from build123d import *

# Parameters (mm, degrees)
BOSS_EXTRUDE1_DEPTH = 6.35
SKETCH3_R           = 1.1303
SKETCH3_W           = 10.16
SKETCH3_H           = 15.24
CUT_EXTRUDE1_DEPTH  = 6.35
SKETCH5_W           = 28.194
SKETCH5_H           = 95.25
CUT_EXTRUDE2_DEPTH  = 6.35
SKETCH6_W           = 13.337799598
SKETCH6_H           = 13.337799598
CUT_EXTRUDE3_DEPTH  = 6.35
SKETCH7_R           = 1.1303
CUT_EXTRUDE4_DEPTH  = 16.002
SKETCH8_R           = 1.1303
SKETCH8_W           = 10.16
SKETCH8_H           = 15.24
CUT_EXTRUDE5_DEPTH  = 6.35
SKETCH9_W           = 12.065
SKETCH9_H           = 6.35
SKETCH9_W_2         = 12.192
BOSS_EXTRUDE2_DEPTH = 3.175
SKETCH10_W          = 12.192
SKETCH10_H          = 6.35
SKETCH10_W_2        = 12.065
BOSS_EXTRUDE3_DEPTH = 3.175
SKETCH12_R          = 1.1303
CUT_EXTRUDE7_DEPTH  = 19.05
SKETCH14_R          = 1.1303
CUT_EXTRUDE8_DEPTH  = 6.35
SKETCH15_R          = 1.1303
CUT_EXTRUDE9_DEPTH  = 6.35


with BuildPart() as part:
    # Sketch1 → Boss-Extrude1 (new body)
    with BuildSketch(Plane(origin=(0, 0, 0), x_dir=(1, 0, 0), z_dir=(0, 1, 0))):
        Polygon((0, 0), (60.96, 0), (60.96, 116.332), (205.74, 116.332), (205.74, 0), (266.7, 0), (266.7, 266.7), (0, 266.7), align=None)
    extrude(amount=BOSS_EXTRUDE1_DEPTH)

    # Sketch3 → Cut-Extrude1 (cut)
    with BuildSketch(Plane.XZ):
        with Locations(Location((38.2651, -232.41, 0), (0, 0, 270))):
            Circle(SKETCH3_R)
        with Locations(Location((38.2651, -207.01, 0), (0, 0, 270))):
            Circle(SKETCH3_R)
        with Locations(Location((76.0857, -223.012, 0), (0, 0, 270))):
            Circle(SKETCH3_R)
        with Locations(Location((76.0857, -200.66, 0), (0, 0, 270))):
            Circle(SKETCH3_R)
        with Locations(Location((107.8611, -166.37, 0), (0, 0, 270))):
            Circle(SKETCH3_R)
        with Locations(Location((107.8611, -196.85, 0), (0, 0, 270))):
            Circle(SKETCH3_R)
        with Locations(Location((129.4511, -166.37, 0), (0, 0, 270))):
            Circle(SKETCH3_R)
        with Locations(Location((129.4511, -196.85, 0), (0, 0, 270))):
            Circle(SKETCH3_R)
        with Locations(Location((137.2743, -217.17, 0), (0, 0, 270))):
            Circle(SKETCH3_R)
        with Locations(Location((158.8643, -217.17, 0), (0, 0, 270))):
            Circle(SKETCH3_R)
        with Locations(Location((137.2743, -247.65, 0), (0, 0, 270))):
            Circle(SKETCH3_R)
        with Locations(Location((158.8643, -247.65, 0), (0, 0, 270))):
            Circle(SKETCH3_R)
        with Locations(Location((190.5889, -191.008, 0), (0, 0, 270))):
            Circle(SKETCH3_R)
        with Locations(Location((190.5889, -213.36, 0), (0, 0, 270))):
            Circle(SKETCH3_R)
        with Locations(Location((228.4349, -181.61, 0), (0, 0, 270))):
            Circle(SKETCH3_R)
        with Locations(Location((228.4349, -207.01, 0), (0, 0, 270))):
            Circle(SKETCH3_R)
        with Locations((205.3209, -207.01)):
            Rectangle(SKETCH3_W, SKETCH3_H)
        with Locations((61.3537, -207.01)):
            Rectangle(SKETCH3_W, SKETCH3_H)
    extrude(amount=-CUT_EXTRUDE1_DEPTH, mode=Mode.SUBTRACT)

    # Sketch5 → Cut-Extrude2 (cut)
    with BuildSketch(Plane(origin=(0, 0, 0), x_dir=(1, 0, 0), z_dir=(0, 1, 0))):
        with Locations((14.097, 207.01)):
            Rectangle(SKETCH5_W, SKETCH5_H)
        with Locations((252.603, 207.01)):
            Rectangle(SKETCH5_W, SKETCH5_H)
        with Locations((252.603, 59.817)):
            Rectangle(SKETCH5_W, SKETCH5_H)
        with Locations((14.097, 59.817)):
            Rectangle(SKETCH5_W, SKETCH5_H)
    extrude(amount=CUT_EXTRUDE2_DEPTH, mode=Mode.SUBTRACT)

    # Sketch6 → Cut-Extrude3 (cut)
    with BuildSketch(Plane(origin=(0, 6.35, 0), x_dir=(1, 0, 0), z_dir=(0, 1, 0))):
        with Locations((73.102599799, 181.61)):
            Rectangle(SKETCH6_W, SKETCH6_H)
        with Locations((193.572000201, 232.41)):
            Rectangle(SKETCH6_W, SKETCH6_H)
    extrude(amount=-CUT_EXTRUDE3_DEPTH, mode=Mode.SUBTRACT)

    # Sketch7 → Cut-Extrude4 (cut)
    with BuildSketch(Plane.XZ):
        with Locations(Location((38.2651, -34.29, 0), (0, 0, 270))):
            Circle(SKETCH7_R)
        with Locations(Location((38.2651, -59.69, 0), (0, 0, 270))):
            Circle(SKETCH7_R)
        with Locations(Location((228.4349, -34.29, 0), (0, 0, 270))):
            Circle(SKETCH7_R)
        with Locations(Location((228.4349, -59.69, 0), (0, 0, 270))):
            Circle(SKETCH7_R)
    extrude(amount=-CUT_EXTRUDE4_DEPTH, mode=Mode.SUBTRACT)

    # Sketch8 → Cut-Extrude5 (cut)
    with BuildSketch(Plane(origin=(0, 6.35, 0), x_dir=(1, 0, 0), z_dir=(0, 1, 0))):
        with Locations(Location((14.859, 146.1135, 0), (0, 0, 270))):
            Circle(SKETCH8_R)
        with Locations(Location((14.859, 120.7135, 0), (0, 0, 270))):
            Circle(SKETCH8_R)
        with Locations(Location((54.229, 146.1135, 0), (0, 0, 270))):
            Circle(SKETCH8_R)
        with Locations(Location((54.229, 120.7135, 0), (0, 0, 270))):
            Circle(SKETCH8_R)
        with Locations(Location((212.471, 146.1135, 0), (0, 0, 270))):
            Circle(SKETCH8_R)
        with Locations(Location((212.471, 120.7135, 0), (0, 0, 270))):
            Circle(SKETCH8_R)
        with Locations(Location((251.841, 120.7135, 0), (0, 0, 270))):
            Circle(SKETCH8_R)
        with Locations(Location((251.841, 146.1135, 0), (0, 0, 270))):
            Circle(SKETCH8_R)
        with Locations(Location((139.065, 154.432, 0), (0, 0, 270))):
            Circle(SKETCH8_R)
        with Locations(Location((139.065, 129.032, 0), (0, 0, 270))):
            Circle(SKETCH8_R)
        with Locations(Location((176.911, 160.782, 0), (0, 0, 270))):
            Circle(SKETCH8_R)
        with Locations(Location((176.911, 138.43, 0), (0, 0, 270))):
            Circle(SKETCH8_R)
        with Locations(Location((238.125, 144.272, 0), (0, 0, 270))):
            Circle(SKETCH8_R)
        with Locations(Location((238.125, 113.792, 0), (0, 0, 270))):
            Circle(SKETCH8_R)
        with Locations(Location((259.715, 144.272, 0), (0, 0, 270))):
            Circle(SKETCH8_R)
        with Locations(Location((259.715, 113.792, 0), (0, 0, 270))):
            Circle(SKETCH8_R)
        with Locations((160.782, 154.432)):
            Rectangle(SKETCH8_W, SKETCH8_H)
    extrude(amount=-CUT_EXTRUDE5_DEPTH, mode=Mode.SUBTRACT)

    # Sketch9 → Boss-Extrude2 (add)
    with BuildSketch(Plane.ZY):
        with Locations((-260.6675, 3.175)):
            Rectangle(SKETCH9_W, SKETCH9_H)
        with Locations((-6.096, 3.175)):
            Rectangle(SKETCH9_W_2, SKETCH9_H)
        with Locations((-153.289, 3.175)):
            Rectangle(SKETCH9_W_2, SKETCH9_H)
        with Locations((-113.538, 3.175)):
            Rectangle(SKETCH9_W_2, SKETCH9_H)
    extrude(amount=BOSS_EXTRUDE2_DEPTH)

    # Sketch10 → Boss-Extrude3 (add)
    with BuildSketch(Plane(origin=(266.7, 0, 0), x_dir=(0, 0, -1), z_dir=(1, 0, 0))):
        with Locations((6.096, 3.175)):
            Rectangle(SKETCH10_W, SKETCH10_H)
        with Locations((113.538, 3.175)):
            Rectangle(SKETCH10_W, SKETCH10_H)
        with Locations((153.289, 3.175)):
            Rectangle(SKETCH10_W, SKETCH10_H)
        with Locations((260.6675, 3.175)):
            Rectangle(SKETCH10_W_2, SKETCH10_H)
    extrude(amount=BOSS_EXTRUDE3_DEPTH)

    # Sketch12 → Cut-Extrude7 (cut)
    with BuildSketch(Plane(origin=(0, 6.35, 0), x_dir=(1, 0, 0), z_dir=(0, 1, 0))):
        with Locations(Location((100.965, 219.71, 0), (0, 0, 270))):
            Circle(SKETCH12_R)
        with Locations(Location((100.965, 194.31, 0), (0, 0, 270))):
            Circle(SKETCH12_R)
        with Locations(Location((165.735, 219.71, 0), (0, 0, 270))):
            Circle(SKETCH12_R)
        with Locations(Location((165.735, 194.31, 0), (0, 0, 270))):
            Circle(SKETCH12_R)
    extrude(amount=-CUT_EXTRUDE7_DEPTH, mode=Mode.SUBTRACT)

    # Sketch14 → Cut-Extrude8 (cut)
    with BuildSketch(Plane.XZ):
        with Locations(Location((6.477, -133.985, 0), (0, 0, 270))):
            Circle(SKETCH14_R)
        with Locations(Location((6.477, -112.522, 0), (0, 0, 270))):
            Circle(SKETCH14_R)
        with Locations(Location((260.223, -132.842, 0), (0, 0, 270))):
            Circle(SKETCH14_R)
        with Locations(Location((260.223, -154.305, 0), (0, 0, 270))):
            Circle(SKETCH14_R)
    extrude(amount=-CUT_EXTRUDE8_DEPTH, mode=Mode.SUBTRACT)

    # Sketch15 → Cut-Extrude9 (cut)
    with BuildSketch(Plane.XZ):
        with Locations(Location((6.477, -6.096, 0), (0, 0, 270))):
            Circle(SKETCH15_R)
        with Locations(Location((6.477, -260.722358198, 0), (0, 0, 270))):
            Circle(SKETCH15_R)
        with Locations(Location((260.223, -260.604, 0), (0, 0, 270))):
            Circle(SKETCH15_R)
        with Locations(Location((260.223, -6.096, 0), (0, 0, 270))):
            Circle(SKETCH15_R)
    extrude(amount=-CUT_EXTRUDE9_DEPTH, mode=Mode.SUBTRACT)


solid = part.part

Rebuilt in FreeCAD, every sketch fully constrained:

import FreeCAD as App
import Part
import Sketcher
from FreeCAD import Vector
Q = App.Units.Quantity


def add_polygon(sketch, points):
    """Adds a closed chain of lines whose ends are joined by coincident constraints."""
    first, n = sketch.GeometryCount, len(points)
    for a, b in zip(points, points[1:] + points[:1]):
        sketch.addGeometry(Part.LineSegment(App.Vector(*a, 0), App.Vector(*b, 0)), False)
    for i in range(n):
        sketch.addConstraint(Sketcher.Constraint("Coincident", first + i, 2, first + (i + 1) % n, 1))

doc = App.newDocument("Part")
body = doc.addObject("PartDesign::Body", "Body")

sketch1 = doc.addObject("Sketcher::SketchObject", "Sketch")
body.addObject(sketch1)
sketch1.AttachmentSupport = (doc.XZ_Plane, [""])
sketch1.MapMode = "FlatFace"
add_polygon(sketch1, [(0, 0), (60.96, 0), (60.96, -116.332), (205.74, -116.332), (205.74, 0), (266.7, 0), (266.7, -266.7), (0, -266.7)])
sketch1.addConstraint([
    Sketcher.Constraint("Horizontal", 0),
    Sketcher.Constraint("Vertical", 1),
    Sketcher.Constraint("Horizontal", 2),
    Sketcher.Constraint("Vertical", 3),
    Sketcher.Constraint("Horizontal", 4),
    Sketcher.Constraint("Vertical", 5),
    Sketcher.Constraint("Horizontal", 6),
    Sketcher.Constraint("Vertical", 7),
    Sketcher.Constraint("Coincident", 7, 2, -1, 1),
    Sketcher.Constraint("PointOnObject", 3, 2, -1),
    Sketcher.Constraint("Equal", 0, 4),
    Sketcher.Constraint("Equal", 6, 5),
    Sketcher.Constraint("DistanceX", 0, 1, 0, 2, Q("2.4 in")),
    Sketcher.Constraint("DistanceX", 2, 1, 2, 2, Q("5.7 in")),
    Sketcher.Constraint("DistanceY", 1, 2, 1, 1, Q("4.58 in")),
])
pad1 = doc.addObject("PartDesign::Pad", "Pad")
body.addObject(pad1)
pad1.Profile = sketch1
pad1.Length = Q("0.25 in")
pad1.Reversed = True

sketch2 = doc.addObject("Sketcher::SketchObject", "Sketch001")
body.addObject(sketch2)
sketch2.AttachmentSupport = (doc.XZ_Plane, [""])
sketch2.MapMode = "FlatFace"
sketch2.addGeometry(Part.Circle(Vector(38.2651, -232.41, 0), Vector(0, 0, 1), 1.1303), False)
sketch2.addGeometry(Part.Circle(Vector(38.2651, -207.01, 0), Vector(0, 0, 1), 1.1303), False)
sketch2.addGeometry(Part.Circle(Vector(76.0857, -223.012, 0), Vector(0, 0, 1), 1.1303), False)
sketch2.addGeometry(Part.Circle(Vector(76.0857, -200.66, 0), Vector(0, 0, 1), 1.1303), False)
sketch2.addGeometry(Part.Circle(Vector(107.8611, -166.37, 0), Vector(0, 0, 1), 1.1303), False)
sketch2.addGeometry(Part.Circle(Vector(107.8611, -196.85, 0), Vector(0, 0, 1), 1.1303), False)
sketch2.addGeometry(Part.Circle(Vector(129.4511, -166.37, 0), Vector(0, 0, 1), 1.1303), False)
sketch2.addGeometry(Part.Circle(Vector(129.4511, -196.85, 0), Vector(0, 0, 1), 1.1303), False)
sketch2.addGeometry(Part.Circle(Vector(137.2743, -217.17, 0), Vector(0, 0, 1), 1.1303), False)
sketch2.addGeometry(Part.Circle(Vector(158.8643, -217.17, 0), Vector(0, 0, 1), 1.1303), False)
sketch2.addGeometry(Part.Circle(Vector(137.2743, -247.65, 0), Vector(0, 0, 1), 1.1303), False)
sketch2.addGeometry(Part.Circle(Vector(158.8643, -247.65, 0), Vector(0, 0, 1), 1.1303), False)
sketch2.addGeometry(Part.Circle(Vector(190.5889, -191.008, 0), Vector(0, 0, 1), 1.1303), False)
sketch2.addGeometry(Part.Circle(Vector(190.5889, -213.36, 0), Vector(0, 0, 1), 1.1303), False)
sketch2.addGeometry(Part.Circle(Vector(228.4349, -181.61, 0), Vector(0, 0, 1), 1.1303), False)
sketch2.addGeometry(Part.Circle(Vector(228.4349, -207.01, 0), Vector(0, 0, 1), 1.1303), False)
add_polygon(sketch2, [(200.2409, -199.39), (200.2409, -214.63), (210.4009, -214.63), (210.4009, -199.39)])
add_polygon(sketch2, [(56.2737, -199.39), (56.2737, -214.63), (66.4337, -214.63), (66.4337, -199.39)])
sketch2.addConstraint([
    Sketcher.Constraint("Vertical", 16),
    Sketcher.Constraint("Horizontal", 17),
    Sketcher.Constraint("Vertical", 18),
    Sketcher.Constraint("Horizontal", 19),
    Sketcher.Constraint("Vertical", 20),
    Sketcher.Constraint("Horizontal", 21),
    Sketcher.Constraint("Vertical", 22),
    Sketcher.Constraint("Horizontal", 23),
    Sketcher.Constraint("Equal", 0, 1),
    Sketcher.Constraint("Equal", 1, 2),
    Sketcher.Constraint("Equal", 2, 3),
    Sketcher.Constraint("Equal", 3, 4),
    Sketcher.Constraint("Equal", 4, 5),
    Sketcher.Constraint("Equal", 5, 6),
    Sketcher.Constraint("Equal", 6, 7),
    Sketcher.Constraint("Equal", 7, 8),
    Sketcher.Constraint("Equal", 8, 9),
    Sketcher.Constraint("Equal", 9, 10),
    Sketcher.Constraint("Equal", 10, 11),
    Sketcher.Constraint("Equal", 11, 12),
    Sketcher.Constraint("Equal", 12, 13),
    Sketcher.Constraint("Equal", 13, 14),
    Sketcher.Constraint("Equal", 14, 15),
    Sketcher.Constraint("Horizontal", 4, 3, 6, 3),
    Sketcher.Constraint("Horizontal", 5, 3, 7, 3),
    Sketcher.Constraint("Horizontal", 8, 3, 9, 3),
    Sketcher.Constraint("Horizontal", 10, 3, 11, 3),
    Sketcher.Constraint("Horizontal", 1, 3, 15, 3),
    Sketcher.Constraint("Horizontal", 17, 2, 20, 2),
    Sketcher.Constraint("Horizontal", 19, 2, 22, 2),
    Sketcher.Constraint("Vertical", 0, 3, 1, 3),
    Sketcher.Constraint("Vertical", 2, 3, 3, 3),
    Sketcher.Constraint("Vertical", 4, 3, 5, 3),
    Sketcher.Constraint("Vertical", 6, 3, 7, 3),
    Sketcher.Constraint("Vertical", 8, 3, 10, 3),
    Sketcher.Constraint("Vertical", 9, 3, 11, 3),
    Sketcher.Constraint("Vertical", 12, 3, 13, 3),
    Sketcher.Constraint("Vertical", 14, 3, 15, 3),
    Sketcher.Constraint("Equal", 19, 21),
    Sketcher.Constraint("Diameter", 0, Q("0.089 in")),
    Sketcher.Constraint("DistanceX", 17, 1, 17, 2, Q("0.4 in")),
    Sketcher.Constraint("DistanceY", 16, 2, 16, 1, Q("0.6 in")),
    Sketcher.Constraint("DistanceY", 0, 3, 1, 3, Q("1 in")),
    Sketcher.Constraint("DistanceY", 8, 3, 6, 3, Q("2 in")),
    Sketcher.Constraint("DistanceY", 10, 3, 7, 3, Q("2 in")),
    Sketcher.Constraint("DistanceY", 15, 3, 14, 3, Q("1 in")),
    Sketcher.Constraint("DistanceY", 3, 3, -1, 1, Q("7.9 in")),
    Sketcher.Constraint("DistanceY", 13, 3, -1, 1, Q("8.4 in")),
    Sketcher.Constraint("DistanceY", 1, 3, 4, 3, Q("1.6 in")),
    Sketcher.Constraint("DistanceY", 5, 3, 4, 3, Q("1.2 in")),
    Sketcher.Constraint("DistanceY", 16, 2, 15, 3, Q("0.3 in")),
    Sketcher.Constraint("DistanceY", 0, 3, -1, 1, Q("9.15 in")),
    Sketcher.Constraint("DistanceY", 2, 3, -1, 1, Q("8.78 in")),
    Sketcher.Constraint("DistanceY", 12, 3, -1, 1, Q("7.52 in")),
    Sketcher.Constraint("DistanceX", 1, 3, 4, 3, Q("2.74 in")),
    Sketcher.Constraint("DistanceX", 4, 3, 6, 3, Q("0.85 in")),
    Sketcher.Constraint("DistanceX", 8, 3, 9, 3, Q("0.85 in")),
    Sketcher.Constraint("DistanceX", 12, 3, 14, 3, Q("1.49 in")),
    Sketcher.Constraint("DistanceX", 13, 3, 16, 2, Q("0.38 in")),
    Sketcher.Constraint("DistanceX", 20, 2, 2, 3, Q("0.78 in")),
    Sketcher.Constraint("DistanceX", 0, 3, 2, 3, Q("1.489 in")),
    Sketcher.Constraint("DistanceX", 7, 3, 8, 3, Q("0.308 in")),
    Sketcher.Constraint("DistanceX", 9, 3, 12, 3, Q("1.249 in")),
    Sketcher.Constraint("DistanceX", -1, 1, 0, 3, Q("1.5065 in")),
])
pocket1 = doc.addObject("PartDesign::Pocket", "Pocket")
body.addObject(pocket1)
pocket1.Profile = sketch2
pocket1.Length = Q("0.25 in")

sketch3 = doc.addObject("Sketcher::SketchObject", "Sketch002")
body.addObject(sketch3)
sketch3.AttachmentSupport = (doc.XZ_Plane, [""])
sketch3.MapMode = "FlatFace"
add_polygon(sketch3, [(0, -254.635), (0, -159.385), (28.194, -159.385), (28.194, -254.635)])
add_polygon(sketch3, [(238.506, -254.635), (238.506, -159.385), (266.7, -159.385), (266.7, -254.635)])
add_polygon(sketch3, [(238.506, -107.442), (238.506, -12.192), (266.7, -12.192), (266.7, -107.442)])
add_polygon(sketch3, [(0, -107.442), (0, -12.192), (28.194, -12.192), (28.194, -107.442)])
sketch3.addConstraint([
    Sketcher.Constraint("Vertical", 0),
    Sketcher.Constraint("Horizontal", 1),
    Sketcher.Constraint("Vertical", 2),
    Sketcher.Constraint("Horizontal", 3),
    Sketcher.Constraint("Vertical", 4),
    Sketcher.Constraint("Horizontal", 5),
    Sketcher.Constraint("Vertical", 6),
    Sketcher.Constraint("Horizontal", 7),
    Sketcher.Constraint("Vertical", 8),
    Sketcher.Constraint("Horizontal", 9),
    Sketcher.Constraint("Vertical", 10),
    Sketcher.Constraint("Horizontal", 11),
    Sketcher.Constraint("Vertical", 12),
    Sketcher.Constraint("Horizontal", 13),
    Sketcher.Constraint("Vertical", 14),
    Sketcher.Constraint("Horizontal", 15),
    Sketcher.Constraint("PointOnObject", 0, 2, -2),
    Sketcher.Constraint("PointOnObject", 12, 2, -2),
    Sketcher.Constraint("Horizontal", 1, 2, 4, 2),
    Sketcher.Constraint("Horizontal", 3, 2, 6, 2),
    Sketcher.Constraint("Horizontal", 9, 2, 12, 2),
    Sketcher.Constraint("Horizontal", 11, 2, 14, 2),
    Sketcher.Constraint("Vertical", 7, 2, 8, 2),
    Sketcher.Constraint("Vertical", 6, 2, 9, 2),
    Sketcher.Constraint("Vertical", 2, 2, 13, 2),
    Sketcher.Constraint("Equal", 3, 5),
    Sketcher.Constraint("Equal", 6, 8),
    Sketcher.Constraint("DistanceX", 1, 1, 1, 2, Q("1.11 in")),
    Sketcher.Constraint("DistanceY", 0, 1, 0, 2, Q("3.75 in")),
    Sketcher.Constraint("DistanceX", -1, 1, 5, 2, Q("10.5 in")),
    Sketcher.Constraint("DistanceY", 8, 2, -1, 1, Q("0.48 in")),
    Sketcher.Constraint("DistanceY", 0, 2, -1, 1, Q("6.275 in")),
])
pocket2 = doc.addObject("PartDesign::Pocket", "Pocket001")
body.addObject(pocket2)
pocket2.Profile = sketch3
pocket2.Length = Q("0.25 in")

sketch4 = doc.addObject("Sketcher::SketchObject", "Sketch003")
body.addObject(sketch4)
sketch4.AttachmentSupport = (doc.XZ_Plane, [""])
sketch4.MapMode = "FlatFace"
sketch4.AttachmentOffset = App.Placement(Vector(0, 0, -0.25 * 25.4), App.Rotation())
add_polygon(sketch4, [(66.4337, -188.2789), (66.4337, -174.9411), (79.7715, -174.9411), (79.7715, -188.2789)])
add_polygon(sketch4, [(186.9031, -239.0789), (186.9031, -225.7411), (200.2409, -225.7411), (200.2409, -239.0789)])
sketch4.addConstraint([
    Sketcher.Constraint("Vertical", 0),
    Sketcher.Constraint("Horizontal", 1),
    Sketcher.Constraint("Vertical", 2),
    Sketcher.Constraint("Horizontal", 3),
    Sketcher.Constraint("Vertical", 4),
    Sketcher.Constraint("Horizontal", 5),
    Sketcher.Constraint("Vertical", 6),
    Sketcher.Constraint("Horizontal", 7),
    Sketcher.Constraint("Equal", 3, 5),
    Sketcher.Constraint("Equal", 7, 0),
    Sketcher.Constraint("Equal", 2, 4),
    Sketcher.Constraint("DistanceY", 4, 2, 1, 2, Q("2 in")),
    Sketcher.Constraint("DistanceX", 3, 2, 5, 2, Q("5.268 in")),
    Sketcher.Constraint("DistanceX", 1, 1, 1, 2, Q("13.3378 mm")),
    Sketcher.Constraint("DistanceX", -1, 1, 0, 2, Q("2.6155 in")),
    Sketcher.Constraint("DistanceY", 0, 2, -1, 1, Q("174.9411 mm")),
])
pocket3 = doc.addObject("PartDesign::Pocket", "Pocket002")
body.addObject(pocket3)
pocket3.Profile = sketch4
pocket3.Length = Q("0.25 in")
pocket3.Reversed = True

sketch5 = doc.addObject("Sketcher::SketchObject", "Sketch004")
body.addObject(sketch5)
sketch5.AttachmentSupport = (doc.XZ_Plane, [""])
sketch5.MapMode = "FlatFace"
sketch5.addGeometry([
    Part.Circle(Vector(38.2651, -34.29, 0), Vector(0, 0, 1), 1.1303),
    Part.Circle(Vector(38.2651, -59.69, 0), Vector(0, 0, 1), 1.1303),
    Part.Circle(Vector(228.4349, -34.29, 0), Vector(0, 0, 1), 1.1303),
    Part.Circle(Vector(228.4349, -59.69, 0), Vector(0, 0, 1), 1.1303),
], False)
sketch5.addConstraint([
    Sketcher.Constraint("Equal", 0, 1),
    Sketcher.Constraint("Equal", 1, 2),
    Sketcher.Constraint("Equal", 2, 3),
    Sketcher.Constraint("Horizontal", 0, 3, 2, 3),
    Sketcher.Constraint("Horizontal", 1, 3, 3, 3),
    Sketcher.Constraint("Vertical", 0, 3, 1, 3),
    Sketcher.Constraint("Vertical", 2, 3, 3, 3),
    Sketcher.Constraint("Diameter", 0, Q("0.089 in")),
    Sketcher.Constraint("DistanceY", 1, 3, 0, 3, Q("1 in")),
    Sketcher.Constraint("DistanceY", 0, 3, -1, 1, Q("1.35 in")),
    Sketcher.Constraint("DistanceX", 0, 3, 2, 3, Q("7.487 in")),
    Sketcher.Constraint("DistanceX", -1, 1, 0, 3, Q("1.5065 in")),
])
pocket4 = doc.addObject("PartDesign::Pocket", "Pocket003")
body.addObject(pocket4)
pocket4.Profile = sketch5
pocket4.Length = Q("0.63 in")

sketch6 = doc.addObject("Sketcher::SketchObject", "Sketch005")
body.addObject(sketch6)
sketch6.AttachmentSupport = (doc.XZ_Plane, [""])
sketch6.MapMode = "FlatFace"
sketch6.AttachmentOffset = App.Placement(Vector(0, 0, -0.25 * 25.4), App.Rotation())
sketch6.addGeometry(Part.Circle(Vector(14.859, -146.1135, 0), Vector(0, 0, 1), 1.1303), False)
sketch6.addGeometry(Part.Circle(Vector(14.859, -120.7135, 0), Vector(0, 0, 1), 1.1303), False)
sketch6.addGeometry(Part.Circle(Vector(54.229, -146.1135, 0), Vector(0, 0, 1), 1.1303), False)
sketch6.addGeometry(Part.Circle(Vector(54.229, -120.7135, 0), Vector(0, 0, 1), 1.1303), False)
sketch6.addGeometry(Part.Circle(Vector(212.471, -146.1135, 0), Vector(0, 0, 1), 1.1303), False)
sketch6.addGeometry(Part.Circle(Vector(212.471, -120.7135, 0), Vector(0, 0, 1), 1.1303), False)
sketch6.addGeometry(Part.Circle(Vector(251.841, -120.7135, 0), Vector(0, 0, 1), 1.1303), False)
sketch6.addGeometry(Part.Circle(Vector(251.841, -146.1135, 0), Vector(0, 0, 1), 1.1303), False)
sketch6.addGeometry(Part.Circle(Vector(139.065, -154.432, 0), Vector(0, 0, 1), 1.1303), False)
sketch6.addGeometry(Part.Circle(Vector(139.065, -129.032, 0), Vector(0, 0, 1), 1.1303), False)
sketch6.addGeometry(Part.Circle(Vector(176.911, -160.782, 0), Vector(0, 0, 1), 1.1303), False)
sketch6.addGeometry(Part.Circle(Vector(176.911, -138.43, 0), Vector(0, 0, 1), 1.1303), False)
sketch6.addGeometry(Part.Circle(Vector(238.125, -144.272, 0), Vector(0, 0, 1), 1.1303), False)
sketch6.addGeometry(Part.Circle(Vector(238.125, -113.792, 0), Vector(0, 0, 1), 1.1303), False)
sketch6.addGeometry(Part.Circle(Vector(259.715, -144.272, 0), Vector(0, 0, 1), 1.1303), False)
sketch6.addGeometry(Part.Circle(Vector(259.715, -113.792, 0), Vector(0, 0, 1), 1.1303), False)
add_polygon(sketch6, [(155.702, -162.052), (155.702, -146.812), (165.862, -146.812), (165.862, -162.052)])
sketch6.addConstraint([
    Sketcher.Constraint("Vertical", 16),
    Sketcher.Constraint("Horizontal", 17),
    Sketcher.Constraint("Vertical", 18),
    Sketcher.Constraint("Horizontal", 19),
    Sketcher.Constraint("Equal", 0, 1),
    Sketcher.Constraint("Equal", 1, 2),
    Sketcher.Constraint("Equal", 2, 3),
    Sketcher.Constraint("Equal", 3, 4),
    Sketcher.Constraint("Equal", 4, 5),
    Sketcher.Constraint("Equal", 5, 6),
    Sketcher.Constraint("Equal", 6, 7),
    Sketcher.Constraint("Equal", 7, 8),
    Sketcher.Constraint("Equal", 8, 9),
    Sketcher.Constraint("Equal", 9, 10),
    Sketcher.Constraint("Equal", 10, 11),
    Sketcher.Constraint("Equal", 11, 12),
    Sketcher.Constraint("Equal", 12, 13),
    Sketcher.Constraint("Equal", 13, 14),
    Sketcher.Constraint("Equal", 14, 15),
    Sketcher.Constraint("Horizontal", 0, 3, 2, 3),
    Sketcher.Constraint("Horizontal", 1, 3, 3, 3),
    Sketcher.Constraint("Horizontal", 2, 3, 4, 3),
    Sketcher.Constraint("Horizontal", 3, 3, 5, 3),
    Sketcher.Constraint("Horizontal", 5, 3, 6, 3),
    Sketcher.Constraint("Horizontal", 4, 3, 7, 3),
    Sketcher.Constraint("Horizontal", 12, 3, 14, 3),
    Sketcher.Constraint("Horizontal", 13, 3, 15, 3),
    Sketcher.Constraint("Vertical", 0, 3, 1, 3),
    Sketcher.Constraint("Vertical", 2, 3, 3, 3),
    Sketcher.Constraint("Vertical", 4, 3, 5, 3),
    Sketcher.Constraint("Vertical", 6, 3, 7, 3),
    Sketcher.Constraint("Vertical", 8, 3, 9, 3),
    Sketcher.Constraint("Vertical", 10, 3, 11, 3),
    Sketcher.Constraint("Vertical", 12, 3, 13, 3),
    Sketcher.Constraint("Vertical", 14, 3, 15, 3),
    Sketcher.Constraint("Diameter", 0, Q("0.089 in")),
    Sketcher.Constraint("DistanceX", 17, 1, 17, 2, Q("0.4 in")),
    Sketcher.Constraint("DistanceY", 16, 1, 16, 2, Q("0.6 in")),
    Sketcher.Constraint("DistanceY", 0, 3, 1, 3, Q("1 in")),
    Sketcher.Constraint("DistanceY", 8, 3, 9, 3, Q("1 in")),
    Sketcher.Constraint("DistanceX", 10, 3, 4, 3, Q("1.4 in")),
    Sketcher.Constraint("DistanceY", 12, 3, 13, 3, Q("1.2 in")),
    Sketcher.Constraint("DistanceY", 8, 3, 16, 2, Q("0.3 in")),
    Sketcher.Constraint("DistanceY", 8, 3, -1, 1, Q("6.08 in")),
    Sketcher.Constraint("DistanceY", 10, 3, -1, 1, Q("6.33 in")),
    Sketcher.Constraint("DistanceY", 11, 3, -1, 1, Q("5.45 in")),
    Sketcher.Constraint("DistanceY", 12, 3, -1, 1, Q("5.68 in")),
    Sketcher.Constraint("DistanceX", -1, 1, 16, 2, Q("6.13 in")),
    Sketcher.Constraint("DistanceX", 0, 3, 2, 3, Q("1.55 in")),
    Sketcher.Constraint("DistanceX", 2, 3, 4, 3, Q("6.23 in")),
    Sketcher.Constraint("DistanceX", 5, 3, 6, 3, Q("1.55 in")),
    Sketcher.Constraint("DistanceX", 8, 3, 4, 3, Q("2.89 in")),
    Sketcher.Constraint("DistanceX", 12, 3, 7, 3, Q("0.54 in")),
    Sketcher.Constraint("DistanceX", 7, 3, 14, 3, Q("0.31 in")),
    Sketcher.Constraint("DistanceX", -1, 1, 0, 3, Q("0.585 in")),
    Sketcher.Constraint("DistanceY", 0, 3, -1, 1, Q("5.7525 in")),
])
pocket5 = doc.addObject("PartDesign::Pocket", "Pocket004")
body.addObject(pocket5)
pocket5.Profile = sketch6
pocket5.Length = Q("0.25 in")
pocket5.Reversed = True

sketch7 = doc.addObject("Sketcher::SketchObject", "Sketch006")
body.addObject(sketch7)
sketch7.AttachmentSupport = (doc.YZ_Plane, [""])
sketch7.MapMode = "FlatFace"
add_polygon(sketch7, [(6.35, -266.7), (0, -266.7), (0, -254.635), (6.35, -254.635)])
add_polygon(sketch7, [(6.35, -12.192), (0, -12.192), (0, 0), (6.35, 0)])
add_polygon(sketch7, [(6.35, -159.385), (0, -159.385), (0, -147.193), (6.35, -147.193)])
add_polygon(sketch7, [(6.35, -119.634), (0, -119.634), (0, -107.442), (6.35, -107.442)])
sketch7.addConstraint([
    Sketcher.Constraint("Horizontal", 0),
    Sketcher.Constraint("Vertical", 1),
    Sketcher.Constraint("Horizontal", 2),
    Sketcher.Constraint("Vertical", 3),
    Sketcher.Constraint("Horizontal", 4),
    Sketcher.Constraint("Vertical", 5),
    Sketcher.Constraint("Horizontal", 6),
    Sketcher.Constraint("Vertical", 7),
    Sketcher.Constraint("Horizontal", 8),
    Sketcher.Constraint("Vertical", 9),
    Sketcher.Constraint("Horizontal", 10),
    Sketcher.Constraint("Vertical", 11),
    Sketcher.Constraint("Horizontal", 12),
    Sketcher.Constraint("Vertical", 13),
    Sketcher.Constraint("Horizontal", 14),
    Sketcher.Constraint("Vertical", 15),
    Sketcher.Constraint("Coincident", 5, 2, -1, 1),
    Sketcher.Constraint("PointOnObject", 0, 2, -2),
    Sketcher.Constraint("PointOnObject", 8, 2, -2),
    Sketcher.Constraint("PointOnObject", 12, 2, -2),
    Sketcher.Constraint("Vertical", 3, 2, 6, 2),
    Sketcher.Constraint("Vertical", 7, 2, 10, 2),
    Sketcher.Constraint("Vertical", 11, 2, 14, 2),
    Sketcher.Constraint("Equal", 7, 9),
    Sketcher.Constraint("Equal", 11, 13),
    Sketcher.Constraint("DistanceX", 0, 2, 0, 1, Q("0.25 in")),
    Sketcher.Constraint("DistanceY", 5, 1, 5, 2, Q("0.48 in")),
    Sketcher.Constraint("DistanceY", 0, 2, -1, 1, Q("10.5 in")),
    Sketcher.Constraint("DistanceY", 1, 1, 1, 2, Q("0.475 in")),
    Sketcher.Constraint("DistanceY", 12, 2, -1, 1, Q("4.71 in")),
    Sketcher.Constraint("DistanceY", 1, 2, 8, 2, Q("3.75 in")),
])
pad2 = doc.addObject("PartDesign::Pad", "Pad001")
body.addObject(pad2)
pad2.Profile = sketch7
pad2.Length = Q("0.125 in")
pad2.Reversed = True

sketch8 = doc.addObject("Sketcher::SketchObject", "Sketch007")
body.addObject(sketch8)
sketch8.AttachmentSupport = (doc.YZ_Plane, [""])
sketch8.MapMode = "FlatFace"
sketch8.AttachmentOffset = App.Placement(Vector(0, 0, 10.5 * 25.4), App.Rotation())
add_polygon(sketch8, [(6.35, 0), (0, 0), (0, -12.192), (6.35, -12.192)])
add_polygon(sketch8, [(6.35, -107.442), (0, -107.442), (0, -119.634), (6.35, -119.634)])
add_polygon(sketch8, [(6.35, -147.193), (0, -147.193), (0, -159.385), (6.35, -159.385)])
add_polygon(sketch8, [(6.35, -254.635), (0, -254.635), (0, -266.7), (6.35, -266.7)])
sketch8.addConstraint([
    Sketcher.Constraint("Horizontal", 0),
    Sketcher.Constraint("Vertical", 1),
    Sketcher.Constraint("Horizontal", 2),
    Sketcher.Constraint("Vertical", 3),
    Sketcher.Constraint("Horizontal", 4),
    Sketcher.Constraint("Vertical", 5),
    Sketcher.Constraint("Horizontal", 6),
    Sketcher.Constraint("Vertical", 7),
    Sketcher.Constraint("Horizontal", 8),
    Sketcher.Constraint("Vertical", 9),
    Sketcher.Constraint("Horizontal", 10),
    Sketcher.Constraint("Vertical", 11),
    Sketcher.Constraint("Horizontal", 12),
    Sketcher.Constraint("Vertical", 13),
    Sketcher.Constraint("Horizontal", 14),
    Sketcher.Constraint("Vertical", 15),
    Sketcher.Constraint("Coincident", 0, 2, -1, 1),
    Sketcher.Constraint("PointOnObject", 4, 2, -2),
    Sketcher.Constraint("PointOnObject", 8, 2, -2),
    Sketcher.Constraint("PointOnObject", 12, 2, -2),
    Sketcher.Constraint("Vertical", 3, 2, 6, 2),
    Sketcher.Constraint("Vertical", 7, 2, 10, 2),
    Sketcher.Constraint("Vertical", 11, 2, 14, 2),
    Sketcher.Constraint("Equal", 3, 5),
    Sketcher.Constraint("Equal", 7, 9),
    Sketcher.Constraint("DistanceX", 0, 2, 0, 1, Q("0.25 in")),
    Sketcher.Constraint("DistanceY", 1, 2, 1, 1, Q("0.48 in")),
    Sketcher.Constraint("DistanceY", 13, 2, -1, 1, Q("10.5 in")),
    Sketcher.Constraint("DistanceY", 13, 2, 13, 1, Q("0.475 in")),
    Sketcher.Constraint("DistanceY", 4, 2, -1, 1, Q("4.23 in")),
    Sketcher.Constraint("DistanceY", 12, 2, 9, 2, Q("3.75 in")),
])
pad3 = doc.addObject("PartDesign::Pad", "Pad002")
body.addObject(pad3)
pad3.Profile = sketch8
pad3.Length = Q("0.125 in")

sketch9 = doc.addObject("Sketcher::SketchObject", "Sketch008")
body.addObject(sketch9)
sketch9.AttachmentSupport = (doc.XZ_Plane, [""])
sketch9.MapMode = "FlatFace"
sketch9.AttachmentOffset = App.Placement(Vector(0, 0, -0.25 * 25.4), App.Rotation())
sketch9.addGeometry([
    Part.Circle(Vector(100.965, -219.71, 0), Vector(0, 0, 1), 1.1303),
    Part.Circle(Vector(100.965, -194.31, 0), Vector(0, 0, 1), 1.1303),
    Part.Circle(Vector(165.735, -219.71, 0), Vector(0, 0, 1), 1.1303),
    Part.Circle(Vector(165.735, -194.31, 0), Vector(0, 0, 1), 1.1303),
], False)
sketch9.addConstraint([
    Sketcher.Constraint("Equal", 0, 1),
    Sketcher.Constraint("Equal", 1, 2),
    Sketcher.Constraint("Equal", 2, 3),
    Sketcher.Constraint("Horizontal", 0, 3, 2, 3),
    Sketcher.Constraint("Horizontal", 1, 3, 3, 3),
    Sketcher.Constraint("Vertical", 0, 3, 1, 3),
    Sketcher.Constraint("Vertical", 2, 3, 3, 3),
    Sketcher.Constraint("Diameter", 0, Q("0.089 in")),
    Sketcher.Constraint("DistanceY", 0, 3, 1, 3, Q("1 in")),
    Sketcher.Constraint("DistanceY", 0, 3, -1, 1, Q("8.65 in")),
    Sketcher.Constraint("DistanceX", 0, 3, 2, 3, Q("2.55 in")),
    Sketcher.Constraint("DistanceX", -1, 1, 0, 3, Q("3.975 in")),
])
pocket6 = doc.addObject("PartDesign::Pocket", "Pocket005")
body.addObject(pocket6)
pocket6.Profile = sketch9
pocket6.Length = Q("0.75 in")
pocket6.Reversed = True

sketch10 = doc.addObject("Sketcher::SketchObject", "Sketch009")
body.addObject(sketch10)
sketch10.AttachmentSupport = (doc.XZ_Plane, [""])
sketch10.MapMode = "FlatFace"
sketch10.addGeometry([
    Part.Circle(Vector(6.477, -133.985, 0), Vector(0, 0, 1), 1.1303),
    Part.Circle(Vector(6.477, -112.522, 0), Vector(0, 0, 1), 1.1303),
    Part.Circle(Vector(260.223, -132.842, 0), Vector(0, 0, 1), 1.1303),
    Part.Circle(Vector(260.223, -154.305, 0), Vector(0, 0, 1), 1.1303),
], False)
sketch10.addConstraint([
    Sketcher.Constraint("Equal", 0, 1),
    Sketcher.Constraint("Equal", 1, 2),
    Sketcher.Constraint("Equal", 2, 3),
    Sketcher.Constraint("Vertical", 0, 3, 1, 3),
    Sketcher.Constraint("Vertical", 2, 3, 3, 3),
    Sketcher.Constraint("Diameter", 0, Q("0.089 in")),
    Sketcher.Constraint("DistanceY", 2, 3, 1, 3, Q("0.8 in")),
    Sketcher.Constraint("DistanceY", 3, 3, 0, 3, Q("0.8 in")),
    Sketcher.Constraint("DistanceY", 1, 3, -1, 1, Q("4.43 in")),
    Sketcher.Constraint("DistanceX", 0, 3, 2, 3, Q("9.99 in")),
    Sketcher.Constraint("DistanceX", -1, 1, 0, 3, Q("0.255 in")),
    Sketcher.Constraint("DistanceY", 0, 3, -1, 1, Q("5.275 in")),
])
pocket7 = doc.addObject("PartDesign::Pocket", "Pocket006")
body.addObject(pocket7)
pocket7.Profile = sketch10
pocket7.Length = Q("0.25 in")

sketch11 = doc.addObject("Sketcher::SketchObject", "Sketch010")
body.addObject(sketch11)
sketch11.AttachmentSupport = (doc.XZ_Plane, [""])
sketch11.MapMode = "FlatFace"
sketch11.addGeometry([
    Part.Circle(Vector(6.477, -6.096, 0), Vector(0, 0, 1), 1.1303),
    Part.Circle(Vector(6.477, -260.722358, 0), Vector(0, 0, 1), 1.1303),
    Part.Circle(Vector(260.223, -260.604, 0), Vector(0, 0, 1), 1.1303),
    Part.Circle(Vector(260.223, -6.096, 0), Vector(0, 0, 1), 1.1303),
], False)
sketch11.addConstraint([
    Sketcher.Constraint("Equal", 0, 1),
    Sketcher.Constraint("Equal", 1, 2),
    Sketcher.Constraint("Equal", 2, 3),
    Sketcher.Constraint("Horizontal", 0, 3, 3, 3),
    Sketcher.Constraint("Vertical", 0, 3, 1, 3),
    Sketcher.Constraint("Vertical", 2, 3, 3, 3),
    Sketcher.Constraint("Diameter", 0, Q("0.089 in")),
    Sketcher.Constraint("DistanceY", 0, 3, -1, 1, Q("0.24 in")),
    Sketcher.Constraint("DistanceY", 2, 3, -1, 1, Q("10.26 in")),
    Sketcher.Constraint("DistanceX", 1, 3, 2, 3, Q("9.99 in")),
    Sketcher.Constraint("DistanceX", -1, 1, 0, 3, Q("0.255 in")),
    Sketcher.Constraint("DistanceY", 1, 3, -1, 1, Q("260.722358 mm")),
])
pocket8 = doc.addObject("PartDesign::Pocket", "Pocket007")
body.addObject(pocket8)
pocket8.Profile = sketch11
pocket8.Length = Q("0.25 in")

doc.recompute()
